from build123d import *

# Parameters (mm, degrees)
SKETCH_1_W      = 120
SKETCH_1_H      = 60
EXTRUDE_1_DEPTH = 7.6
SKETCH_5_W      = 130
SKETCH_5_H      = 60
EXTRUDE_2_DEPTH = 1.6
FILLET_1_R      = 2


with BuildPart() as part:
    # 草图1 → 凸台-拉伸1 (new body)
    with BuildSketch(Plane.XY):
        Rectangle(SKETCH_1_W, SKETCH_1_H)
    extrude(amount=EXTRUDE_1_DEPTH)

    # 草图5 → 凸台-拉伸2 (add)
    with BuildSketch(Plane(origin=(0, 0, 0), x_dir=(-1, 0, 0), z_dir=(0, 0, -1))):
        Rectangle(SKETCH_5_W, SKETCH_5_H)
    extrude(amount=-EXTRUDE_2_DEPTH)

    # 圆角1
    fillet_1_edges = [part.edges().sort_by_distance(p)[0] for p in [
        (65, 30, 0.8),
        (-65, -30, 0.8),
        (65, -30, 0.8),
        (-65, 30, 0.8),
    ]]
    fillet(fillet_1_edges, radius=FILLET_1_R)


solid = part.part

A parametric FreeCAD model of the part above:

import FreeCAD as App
import Part
import Sketcher
from FreeCAD import Vector
Q = App.Units.Quantity


def edges_at(feature, points):
    """Names of the edges that pass closest to the given points."""
    edges = feature.Shape.Edges
    near = lambda p: min(range(len(edges)), key=lambda i: edges[i].distToShape(Part.Vertex(*p))[0])
    return sorted({f"Edge{near(p) + 1}" for p in points})

doc = App.newDocument("Part")
body = doc.addObject("PartDesign::Body", "Body")

# Sketch on XY plane
sketch1 = body.newObject("Sketcher::SketchObject", "Sketch")
sketch1.AttachmentSupport = (doc.getObject("XY_Plane"), [""])
sketch1.MapMode = "FlatFace"
sketch1.addGeometry([
    Part.LineSegment(Vector(-60, 30, 0), Vector(-60, -30, 0)),
    Part.LineSegment(Vector(-60, -30, 0), Vector(60, -30, 0)),
    Part.LineSegment(Vector(60, -30, 0), Vector(60, 30, 0)),
    Part.LineSegment(Vector(60, 30, 0), Vector(-60, 30, 0)),
], False)
sketch1.addConstraint([
    Sketcher.Constraint("Coincident", 0, 2, 1, 1),
    Sketcher.Constraint("Coincident", 1, 2, 2, 1),
    Sketcher.Constraint("Coincident", 2, 2, 3, 1),
    Sketcher.Constraint("Coincident", 3, 2, 0, 1),
    Sketcher.Constraint("Vertical", 0),
    Sketcher.Constraint("Horizontal", 1),
    Sketcher.Constraint("Vertical", 2),
    Sketcher.Constraint("Horizontal", 3),
    Sketcher.Constraint("Symmetric", 0, 2, 2, 2, -1, 1),
    Sketcher.Constraint("DistanceX", 1, 1, 1, 2, Q("120 mm")),
    Sketcher.Constraint("DistanceY", 0, 2, 0, 1, Q("60 mm")),
])
pad1 = body.newObject("PartDesign::Pad", "Pad")
pad1.Profile = sketch1
pad1.Length = 7.6

# Sketch on XY plane
sketch2 = body.newObject("Sketcher::SketchObject", "Sketch001")
sketch2.AttachmentSupport = (doc.getObject("XY_Plane"), [""])
sketch2.MapMode = "FlatFace"
sketch2.addGeometry([
    Part.LineSegment(Vector(65, 30, 0), Vector(65, -30, 0)),
    Part.LineSegment(Vector(65, -30, 0), Vector(-65, -30, 0)),
    Part.LineSegment(Vector(-65, -30, 0), Vector(-65, 30, 0)),
    Part.LineSegment(Vector(-65, 30, 0), Vector(65, 30, 0)),
], False)
sketch2.addConstraint([
    Sketcher.Constraint("Coincident", 0, 2, 1, 1),
    Sketcher.Constraint("Coincident", 1, 2, 2, 1),
    Sketcher.Constraint("Coincident", 2, 2, 3, 1),
    Sketcher.Constraint("Coincident", 3, 2, 0, 1),
    Sketcher.Constraint("Vertical", 0),
    Sketcher.Constraint("Horizontal", 1),
    Sketcher.Constraint("Vertical", 2),
    Sketcher.Constraint("Horizontal", 3),
    Sketcher.Constraint("Symmetric", 0, 2, 2, 2, -1, 1),
    Sketcher.Constraint("DistanceX", 1, 2, 1, 1, Q("130 mm")),
    Sketcher.Constraint("DistanceY", 0, 2, 0, 1, Q("60 mm")),
])
pad2 = body.newObject("PartDesign::Pad", "Pad001")
pad2.Profile = sketch2
pad2.Length = 1.6
doc.recompute()

fillet = body.newObject("PartDesign::Fillet", "Fillet")
fillet.Base = (pad2, edges_at(pad2, [
    (65, 30, 0.8),
    (-65, -30, 0.8),
    (65, -30, 0.8),
    (-65, 30, 0.8),
]))
fillet.Radius = 2

doc.recompute()
